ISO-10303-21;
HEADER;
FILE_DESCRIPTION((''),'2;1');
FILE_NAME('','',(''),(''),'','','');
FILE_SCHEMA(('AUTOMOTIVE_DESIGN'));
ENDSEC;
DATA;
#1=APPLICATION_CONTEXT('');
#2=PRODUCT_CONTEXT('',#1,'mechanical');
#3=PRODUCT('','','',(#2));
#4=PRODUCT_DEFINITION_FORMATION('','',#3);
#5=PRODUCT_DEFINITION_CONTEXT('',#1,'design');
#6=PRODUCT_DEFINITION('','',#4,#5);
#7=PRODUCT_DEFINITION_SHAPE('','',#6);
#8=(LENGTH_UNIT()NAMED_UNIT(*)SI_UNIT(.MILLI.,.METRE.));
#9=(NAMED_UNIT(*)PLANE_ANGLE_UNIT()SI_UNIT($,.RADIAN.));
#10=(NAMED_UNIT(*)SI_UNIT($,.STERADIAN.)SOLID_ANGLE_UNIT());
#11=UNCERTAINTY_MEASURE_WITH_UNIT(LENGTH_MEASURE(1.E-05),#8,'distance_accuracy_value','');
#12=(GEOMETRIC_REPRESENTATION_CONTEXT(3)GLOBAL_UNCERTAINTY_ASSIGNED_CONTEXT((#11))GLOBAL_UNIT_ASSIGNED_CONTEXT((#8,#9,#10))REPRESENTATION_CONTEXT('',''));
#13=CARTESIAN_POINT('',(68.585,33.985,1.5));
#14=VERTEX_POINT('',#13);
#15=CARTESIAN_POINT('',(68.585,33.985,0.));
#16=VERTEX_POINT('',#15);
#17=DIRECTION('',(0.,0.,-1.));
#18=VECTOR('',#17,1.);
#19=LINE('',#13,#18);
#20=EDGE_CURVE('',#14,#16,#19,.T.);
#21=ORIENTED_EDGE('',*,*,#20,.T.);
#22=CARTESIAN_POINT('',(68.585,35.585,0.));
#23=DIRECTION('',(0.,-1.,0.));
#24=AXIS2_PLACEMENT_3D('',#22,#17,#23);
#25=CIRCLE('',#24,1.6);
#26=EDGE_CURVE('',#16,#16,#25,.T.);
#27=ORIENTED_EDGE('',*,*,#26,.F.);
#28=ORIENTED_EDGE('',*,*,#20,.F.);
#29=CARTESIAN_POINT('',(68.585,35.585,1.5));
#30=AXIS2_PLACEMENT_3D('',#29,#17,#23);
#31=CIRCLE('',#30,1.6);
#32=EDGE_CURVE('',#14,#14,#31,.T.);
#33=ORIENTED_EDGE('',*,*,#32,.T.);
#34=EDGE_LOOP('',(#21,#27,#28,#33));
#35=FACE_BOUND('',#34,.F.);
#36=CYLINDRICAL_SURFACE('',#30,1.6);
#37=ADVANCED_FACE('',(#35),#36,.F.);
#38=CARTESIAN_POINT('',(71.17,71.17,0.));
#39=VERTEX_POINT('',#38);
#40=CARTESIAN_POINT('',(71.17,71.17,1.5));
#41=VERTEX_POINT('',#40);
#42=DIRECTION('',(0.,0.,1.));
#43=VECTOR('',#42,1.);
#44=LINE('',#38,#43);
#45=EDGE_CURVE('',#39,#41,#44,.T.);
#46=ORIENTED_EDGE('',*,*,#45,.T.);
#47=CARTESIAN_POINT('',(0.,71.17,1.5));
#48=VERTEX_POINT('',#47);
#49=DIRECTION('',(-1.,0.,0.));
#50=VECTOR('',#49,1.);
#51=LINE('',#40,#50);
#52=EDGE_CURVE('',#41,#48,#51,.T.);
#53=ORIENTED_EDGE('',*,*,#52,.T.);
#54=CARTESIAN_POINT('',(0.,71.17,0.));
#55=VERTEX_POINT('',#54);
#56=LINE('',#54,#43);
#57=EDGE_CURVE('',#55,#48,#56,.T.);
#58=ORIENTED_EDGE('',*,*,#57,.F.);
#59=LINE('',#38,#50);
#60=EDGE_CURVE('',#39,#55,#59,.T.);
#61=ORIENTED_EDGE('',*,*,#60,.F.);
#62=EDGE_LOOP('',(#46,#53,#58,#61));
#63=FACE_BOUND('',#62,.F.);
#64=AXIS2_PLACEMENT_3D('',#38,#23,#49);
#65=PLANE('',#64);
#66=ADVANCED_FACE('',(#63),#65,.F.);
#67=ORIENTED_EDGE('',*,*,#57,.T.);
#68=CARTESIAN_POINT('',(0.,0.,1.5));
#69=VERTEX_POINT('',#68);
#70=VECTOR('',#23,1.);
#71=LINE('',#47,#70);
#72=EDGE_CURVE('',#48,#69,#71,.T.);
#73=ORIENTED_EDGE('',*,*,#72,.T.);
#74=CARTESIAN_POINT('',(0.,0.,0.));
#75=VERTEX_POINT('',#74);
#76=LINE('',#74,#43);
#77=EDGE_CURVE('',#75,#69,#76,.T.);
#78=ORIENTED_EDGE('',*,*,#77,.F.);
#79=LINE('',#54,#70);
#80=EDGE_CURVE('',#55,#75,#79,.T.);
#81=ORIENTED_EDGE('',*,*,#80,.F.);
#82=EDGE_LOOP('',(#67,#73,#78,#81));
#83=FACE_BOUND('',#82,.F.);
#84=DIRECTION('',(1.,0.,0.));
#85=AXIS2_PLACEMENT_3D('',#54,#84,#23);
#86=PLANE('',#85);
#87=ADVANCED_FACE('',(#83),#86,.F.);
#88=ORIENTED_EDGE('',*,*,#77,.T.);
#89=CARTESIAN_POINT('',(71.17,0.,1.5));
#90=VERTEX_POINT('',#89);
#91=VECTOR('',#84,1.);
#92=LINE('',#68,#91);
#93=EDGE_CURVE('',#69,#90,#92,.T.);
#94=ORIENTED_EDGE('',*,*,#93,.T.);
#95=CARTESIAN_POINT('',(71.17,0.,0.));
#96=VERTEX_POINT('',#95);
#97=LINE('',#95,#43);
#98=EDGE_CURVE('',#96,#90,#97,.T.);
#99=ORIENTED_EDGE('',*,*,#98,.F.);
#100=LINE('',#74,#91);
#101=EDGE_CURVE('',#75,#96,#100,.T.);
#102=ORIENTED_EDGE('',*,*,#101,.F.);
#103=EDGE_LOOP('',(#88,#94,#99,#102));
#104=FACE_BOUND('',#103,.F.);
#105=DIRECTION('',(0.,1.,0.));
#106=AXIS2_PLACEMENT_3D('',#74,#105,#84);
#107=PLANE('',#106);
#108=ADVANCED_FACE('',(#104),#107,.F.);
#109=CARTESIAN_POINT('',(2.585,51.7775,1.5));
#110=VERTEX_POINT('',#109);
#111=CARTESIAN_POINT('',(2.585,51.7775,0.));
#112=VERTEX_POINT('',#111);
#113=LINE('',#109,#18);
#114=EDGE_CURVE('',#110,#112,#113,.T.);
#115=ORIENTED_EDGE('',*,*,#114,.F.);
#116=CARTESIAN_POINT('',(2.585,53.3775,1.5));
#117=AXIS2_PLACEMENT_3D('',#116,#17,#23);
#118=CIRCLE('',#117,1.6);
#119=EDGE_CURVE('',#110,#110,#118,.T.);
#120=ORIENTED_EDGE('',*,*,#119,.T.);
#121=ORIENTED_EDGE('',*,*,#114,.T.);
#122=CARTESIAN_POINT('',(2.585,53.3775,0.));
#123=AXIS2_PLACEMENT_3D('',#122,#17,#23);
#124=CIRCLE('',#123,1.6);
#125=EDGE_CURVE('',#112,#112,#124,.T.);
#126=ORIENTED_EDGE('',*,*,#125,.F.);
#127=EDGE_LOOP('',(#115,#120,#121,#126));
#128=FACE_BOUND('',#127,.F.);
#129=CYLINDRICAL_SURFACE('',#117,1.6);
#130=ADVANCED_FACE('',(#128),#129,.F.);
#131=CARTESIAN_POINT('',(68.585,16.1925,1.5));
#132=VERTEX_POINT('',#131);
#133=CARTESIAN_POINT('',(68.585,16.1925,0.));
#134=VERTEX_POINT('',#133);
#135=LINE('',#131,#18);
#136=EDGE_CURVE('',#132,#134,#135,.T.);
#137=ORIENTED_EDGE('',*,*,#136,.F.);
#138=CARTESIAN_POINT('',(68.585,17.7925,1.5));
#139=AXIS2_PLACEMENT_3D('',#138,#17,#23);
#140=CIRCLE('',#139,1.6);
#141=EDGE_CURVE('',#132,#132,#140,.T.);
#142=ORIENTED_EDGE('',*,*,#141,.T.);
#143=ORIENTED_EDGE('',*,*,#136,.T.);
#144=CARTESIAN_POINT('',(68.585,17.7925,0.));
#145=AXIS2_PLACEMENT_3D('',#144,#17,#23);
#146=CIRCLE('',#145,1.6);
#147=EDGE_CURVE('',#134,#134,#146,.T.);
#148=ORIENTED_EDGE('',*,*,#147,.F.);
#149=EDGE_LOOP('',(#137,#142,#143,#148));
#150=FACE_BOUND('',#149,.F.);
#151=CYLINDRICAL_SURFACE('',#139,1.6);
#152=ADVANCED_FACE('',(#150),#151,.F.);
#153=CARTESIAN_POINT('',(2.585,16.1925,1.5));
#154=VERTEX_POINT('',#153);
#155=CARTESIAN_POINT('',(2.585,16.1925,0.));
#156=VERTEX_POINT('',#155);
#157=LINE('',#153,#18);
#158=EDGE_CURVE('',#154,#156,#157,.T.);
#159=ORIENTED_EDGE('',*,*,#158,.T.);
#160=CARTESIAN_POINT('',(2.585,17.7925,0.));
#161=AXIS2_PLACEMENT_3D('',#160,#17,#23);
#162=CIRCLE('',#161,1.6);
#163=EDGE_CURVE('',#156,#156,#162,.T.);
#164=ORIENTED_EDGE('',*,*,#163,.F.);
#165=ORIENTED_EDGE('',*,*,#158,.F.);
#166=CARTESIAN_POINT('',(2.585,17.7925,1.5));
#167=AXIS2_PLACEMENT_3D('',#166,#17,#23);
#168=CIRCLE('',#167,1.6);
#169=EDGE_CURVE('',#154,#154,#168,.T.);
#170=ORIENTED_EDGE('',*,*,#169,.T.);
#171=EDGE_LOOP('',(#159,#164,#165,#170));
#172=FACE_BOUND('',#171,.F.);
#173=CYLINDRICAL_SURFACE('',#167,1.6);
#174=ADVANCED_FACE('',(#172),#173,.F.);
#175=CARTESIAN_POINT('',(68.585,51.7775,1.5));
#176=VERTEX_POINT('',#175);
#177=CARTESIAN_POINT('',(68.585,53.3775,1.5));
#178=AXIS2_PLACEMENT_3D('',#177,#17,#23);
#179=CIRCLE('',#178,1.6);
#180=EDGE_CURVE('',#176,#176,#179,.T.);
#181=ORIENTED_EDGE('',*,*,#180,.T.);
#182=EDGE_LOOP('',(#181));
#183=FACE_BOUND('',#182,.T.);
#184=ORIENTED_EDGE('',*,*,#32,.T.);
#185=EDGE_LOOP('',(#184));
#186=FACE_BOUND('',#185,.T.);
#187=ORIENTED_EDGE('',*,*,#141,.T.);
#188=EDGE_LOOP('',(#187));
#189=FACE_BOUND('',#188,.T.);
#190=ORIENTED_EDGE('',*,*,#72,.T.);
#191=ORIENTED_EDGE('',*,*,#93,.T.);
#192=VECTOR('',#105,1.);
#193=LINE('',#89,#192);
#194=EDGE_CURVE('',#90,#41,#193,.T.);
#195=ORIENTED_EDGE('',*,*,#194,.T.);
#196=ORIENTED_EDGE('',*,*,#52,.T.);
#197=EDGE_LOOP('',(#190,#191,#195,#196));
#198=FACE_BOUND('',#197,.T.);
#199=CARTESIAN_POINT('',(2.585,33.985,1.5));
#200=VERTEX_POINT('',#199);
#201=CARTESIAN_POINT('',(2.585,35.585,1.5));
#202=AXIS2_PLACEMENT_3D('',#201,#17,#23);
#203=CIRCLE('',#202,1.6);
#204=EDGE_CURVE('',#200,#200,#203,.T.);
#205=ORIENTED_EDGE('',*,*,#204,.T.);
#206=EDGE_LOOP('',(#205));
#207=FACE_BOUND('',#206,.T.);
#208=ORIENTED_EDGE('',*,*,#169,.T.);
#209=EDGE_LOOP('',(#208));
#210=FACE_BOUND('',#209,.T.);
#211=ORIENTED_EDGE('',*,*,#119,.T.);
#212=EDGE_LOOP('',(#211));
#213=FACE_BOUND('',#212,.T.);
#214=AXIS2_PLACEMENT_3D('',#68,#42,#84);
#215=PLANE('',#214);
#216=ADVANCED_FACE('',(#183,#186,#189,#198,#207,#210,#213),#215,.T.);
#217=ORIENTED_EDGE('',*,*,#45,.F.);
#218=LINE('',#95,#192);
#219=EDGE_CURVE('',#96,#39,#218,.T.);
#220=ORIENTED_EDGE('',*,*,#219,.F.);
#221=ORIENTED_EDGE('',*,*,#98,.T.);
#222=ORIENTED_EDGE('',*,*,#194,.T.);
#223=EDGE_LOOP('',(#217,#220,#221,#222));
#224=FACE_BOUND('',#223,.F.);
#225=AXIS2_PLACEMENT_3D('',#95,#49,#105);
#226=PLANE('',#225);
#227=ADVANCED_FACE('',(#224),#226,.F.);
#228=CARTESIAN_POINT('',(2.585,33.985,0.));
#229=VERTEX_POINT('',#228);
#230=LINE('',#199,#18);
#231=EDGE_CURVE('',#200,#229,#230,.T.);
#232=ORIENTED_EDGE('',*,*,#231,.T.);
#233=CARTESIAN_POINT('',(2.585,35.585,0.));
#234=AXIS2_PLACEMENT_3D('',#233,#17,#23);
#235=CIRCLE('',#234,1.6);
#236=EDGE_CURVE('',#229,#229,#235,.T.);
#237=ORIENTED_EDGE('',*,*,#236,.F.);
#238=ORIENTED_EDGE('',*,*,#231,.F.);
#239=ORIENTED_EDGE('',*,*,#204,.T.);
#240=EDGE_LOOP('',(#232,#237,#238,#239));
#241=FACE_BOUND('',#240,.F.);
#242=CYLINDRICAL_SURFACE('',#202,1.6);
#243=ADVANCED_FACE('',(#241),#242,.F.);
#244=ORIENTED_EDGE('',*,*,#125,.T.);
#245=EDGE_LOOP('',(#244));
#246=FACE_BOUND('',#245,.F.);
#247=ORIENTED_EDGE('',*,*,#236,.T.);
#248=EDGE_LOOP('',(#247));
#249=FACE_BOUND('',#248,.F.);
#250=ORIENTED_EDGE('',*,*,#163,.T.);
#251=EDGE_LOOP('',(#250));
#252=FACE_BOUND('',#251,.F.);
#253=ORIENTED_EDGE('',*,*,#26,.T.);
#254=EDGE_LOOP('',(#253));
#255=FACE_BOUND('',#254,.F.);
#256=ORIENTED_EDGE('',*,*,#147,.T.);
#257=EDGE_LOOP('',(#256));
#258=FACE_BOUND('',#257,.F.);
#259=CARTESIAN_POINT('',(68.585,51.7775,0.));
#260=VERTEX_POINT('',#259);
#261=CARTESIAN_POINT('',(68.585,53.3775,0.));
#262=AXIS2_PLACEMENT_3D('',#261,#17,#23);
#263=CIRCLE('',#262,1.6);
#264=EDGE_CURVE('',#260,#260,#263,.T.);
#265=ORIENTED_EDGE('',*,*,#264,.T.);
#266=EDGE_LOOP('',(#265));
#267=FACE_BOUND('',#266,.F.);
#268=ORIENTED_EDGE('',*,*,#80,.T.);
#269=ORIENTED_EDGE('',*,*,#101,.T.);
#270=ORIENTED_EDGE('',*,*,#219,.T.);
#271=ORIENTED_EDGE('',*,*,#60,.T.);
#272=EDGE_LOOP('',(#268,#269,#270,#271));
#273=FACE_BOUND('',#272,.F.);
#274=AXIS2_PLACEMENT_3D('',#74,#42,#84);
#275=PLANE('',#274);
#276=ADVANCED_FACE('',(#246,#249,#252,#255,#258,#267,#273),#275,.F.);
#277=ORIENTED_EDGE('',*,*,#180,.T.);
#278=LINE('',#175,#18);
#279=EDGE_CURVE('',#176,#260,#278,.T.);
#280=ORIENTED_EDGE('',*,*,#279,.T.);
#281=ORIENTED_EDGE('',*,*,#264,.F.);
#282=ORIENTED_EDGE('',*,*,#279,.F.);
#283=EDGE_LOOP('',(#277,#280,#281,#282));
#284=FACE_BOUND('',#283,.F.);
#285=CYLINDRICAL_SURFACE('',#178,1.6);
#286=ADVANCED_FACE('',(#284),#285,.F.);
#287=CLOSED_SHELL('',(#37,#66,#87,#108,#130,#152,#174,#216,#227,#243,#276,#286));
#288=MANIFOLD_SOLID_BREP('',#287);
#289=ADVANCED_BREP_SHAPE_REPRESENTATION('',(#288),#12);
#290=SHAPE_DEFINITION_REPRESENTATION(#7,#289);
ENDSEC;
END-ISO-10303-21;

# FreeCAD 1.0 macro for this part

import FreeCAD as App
import Part
import Sketcher


def add_polygon(sketch, points):
    """Adds a closed chain of lines whose ends are joined by coincident constraints."""
    first, n = sketch.GeometryCount, len(points)
    for a, b in zip(points, points[1:] + points[:1]):
        sketch.addGeometry(Part.LineSegment(App.Vector(*a, 0), App.Vector(*b, 0)), False)
    for i in range(n):
        sketch.addConstraint(Sketcher.Constraint("Coincident", first + i, 2, first + (i + 1) % n, 1))

doc = App.newDocument("Part")
params = doc.addObject("Spreadsheet::Sheet", "Params")
for row, (alias, value) in enumerate([
    ("sketch1_width", "71.17 mm"),
    ("pad1_length", "1.5 mm"),
    ("sketch2_diameter", "3.2 mm"),
    ("hole_diameter", "3.2 mm"),
], start=1):
    params.set(f"A{row}", alias)
    params.set(f"B{row}", "=" + value)
    params.setAlias(f"B{row}", alias)

body = doc.addObject("PartDesign::Body", "Body")

# Sketch on XY plane
sketch1 = body.newObject("Sketcher::SketchObject", "Sketch")
sketch1.AttachmentSupport = (doc.getObject("XY_Plane"), [""])
sketch1.MapMode = "FlatFace"
add_polygon(sketch1, [(0, 71), (0, 0), (71, 0), (71, 71)])  # lines 0-3
sketch1.addConstraint([
    Sketcher.Constraint("Vertical", 0),
    Sketcher.Constraint("Horizontal", 1),
    Sketcher.Constraint("Vertical", 2),
    Sketcher.Constraint("Horizontal", 3),
    Sketcher.Constraint("Coincident", 0, 2, -1, 1),
    Sketcher.Constraint("Equal", 3, 0),
    Sketcher.Constraint("DistanceX", 1, 1, 1, 2, 71.17),
])
sketch1.setExpression("Constraints[10]", "Params.sketch1_width")
pad1 = body.newObject("PartDesign::Pad", "Pad")
pad1.Profile = sketch1
pad1.setExpression("Length", "Params.pad1_length")

# Sketch on XY plane
sketch2 = body.newObject("Sketcher::SketchObject", "Sketch001")
sketch2.AttachmentSupport = (doc.getObject("XY_Plane"), [""])
sketch2.MapMode = "FlatFace"
sketch2.AttachmentOffset = App.Placement(App.Vector(0, 0, 1.5), App.Rotation())
sketch2.addGeometry([
    Part.Circle(App.Vector(68.6, 53.4, 0), App.Vector(0, 0, 1), 1.6),  # 0
    Part.Circle(App.Vector(68.6, 35.6, 0), App.Vector(0, 0, 1), 1.6),  # 1
    Part.Circle(App.Vector(68.6, 17.8, 0), App.Vector(0, 0, 1), 1.6),  # 2
    Part.Circle(App.Vector(2.6, 53.4, 0), App.Vector(0, 0, 1), 1.6),  # 3
    Part.Circle(App.Vector(2.6, 35.6, 0), App.Vector(0, 0, 1), 1.6),  # 4
    Part.Circle(App.Vector(2.6, 17.8, 0), App.Vector(0, 0, 1), 1.6),  # 5
], False)
sketch2.addConstraint([
    Sketcher.Constraint("Equal", 0, 1),
    Sketcher.Constraint("Equal", 1, 2),
    Sketcher.Constraint("Equal", 2, 3),
    Sketcher.Constraint("Equal", 3, 4),
    Sketcher.Constraint("Equal", 4, 5),
    Sketcher.Constraint("Horizontal", 0, 3, 3, 3),
    Sketcher.Constraint("Horizontal", 1, 3, 4, 3),
    Sketcher.Constraint("Horizontal", 2, 3, 5, 3),
    Sketcher.Constraint("Vertical", 0, 3, 1, 3),
    Sketcher.Constraint("Vertical", 1, 3, 2, 3),
    Sketcher.Constraint("Vertical", 3, 3, 4, 3),
    Sketcher.Constraint("Vertical", 4, 3, 5, 3),
    Sketcher.Constraint("Diameter", 0, 3.2),
    Sketcher.Constraint("DistanceX", 3, 3, 0, 3, 66.0),
    Sketcher.Constraint("DistanceX", -1, 1, 0, 3, 68.585),
    Sketcher.Constraint("DistanceY", -1, 1, 1, 3, 35.585),
    Sketcher.Constraint("DistanceY", 2, 3, 0, 3, 35.585),
    Sketcher.Constraint("DistanceY", -1, 1, 0, 3, 53.3775),
])
sketch2.setExpression("Constraints[12]", "Params.sketch2_diameter")
doc.recompute()
hole = body.newObject("PartDesign::Hole", "Hole")
hole.Profile = sketch2
hole.ThreadType = "None"
hole.setExpression("Diameter", "Params.hole_diameter")
hole.DepthType = "ThroughAll"

doc.recompute()
